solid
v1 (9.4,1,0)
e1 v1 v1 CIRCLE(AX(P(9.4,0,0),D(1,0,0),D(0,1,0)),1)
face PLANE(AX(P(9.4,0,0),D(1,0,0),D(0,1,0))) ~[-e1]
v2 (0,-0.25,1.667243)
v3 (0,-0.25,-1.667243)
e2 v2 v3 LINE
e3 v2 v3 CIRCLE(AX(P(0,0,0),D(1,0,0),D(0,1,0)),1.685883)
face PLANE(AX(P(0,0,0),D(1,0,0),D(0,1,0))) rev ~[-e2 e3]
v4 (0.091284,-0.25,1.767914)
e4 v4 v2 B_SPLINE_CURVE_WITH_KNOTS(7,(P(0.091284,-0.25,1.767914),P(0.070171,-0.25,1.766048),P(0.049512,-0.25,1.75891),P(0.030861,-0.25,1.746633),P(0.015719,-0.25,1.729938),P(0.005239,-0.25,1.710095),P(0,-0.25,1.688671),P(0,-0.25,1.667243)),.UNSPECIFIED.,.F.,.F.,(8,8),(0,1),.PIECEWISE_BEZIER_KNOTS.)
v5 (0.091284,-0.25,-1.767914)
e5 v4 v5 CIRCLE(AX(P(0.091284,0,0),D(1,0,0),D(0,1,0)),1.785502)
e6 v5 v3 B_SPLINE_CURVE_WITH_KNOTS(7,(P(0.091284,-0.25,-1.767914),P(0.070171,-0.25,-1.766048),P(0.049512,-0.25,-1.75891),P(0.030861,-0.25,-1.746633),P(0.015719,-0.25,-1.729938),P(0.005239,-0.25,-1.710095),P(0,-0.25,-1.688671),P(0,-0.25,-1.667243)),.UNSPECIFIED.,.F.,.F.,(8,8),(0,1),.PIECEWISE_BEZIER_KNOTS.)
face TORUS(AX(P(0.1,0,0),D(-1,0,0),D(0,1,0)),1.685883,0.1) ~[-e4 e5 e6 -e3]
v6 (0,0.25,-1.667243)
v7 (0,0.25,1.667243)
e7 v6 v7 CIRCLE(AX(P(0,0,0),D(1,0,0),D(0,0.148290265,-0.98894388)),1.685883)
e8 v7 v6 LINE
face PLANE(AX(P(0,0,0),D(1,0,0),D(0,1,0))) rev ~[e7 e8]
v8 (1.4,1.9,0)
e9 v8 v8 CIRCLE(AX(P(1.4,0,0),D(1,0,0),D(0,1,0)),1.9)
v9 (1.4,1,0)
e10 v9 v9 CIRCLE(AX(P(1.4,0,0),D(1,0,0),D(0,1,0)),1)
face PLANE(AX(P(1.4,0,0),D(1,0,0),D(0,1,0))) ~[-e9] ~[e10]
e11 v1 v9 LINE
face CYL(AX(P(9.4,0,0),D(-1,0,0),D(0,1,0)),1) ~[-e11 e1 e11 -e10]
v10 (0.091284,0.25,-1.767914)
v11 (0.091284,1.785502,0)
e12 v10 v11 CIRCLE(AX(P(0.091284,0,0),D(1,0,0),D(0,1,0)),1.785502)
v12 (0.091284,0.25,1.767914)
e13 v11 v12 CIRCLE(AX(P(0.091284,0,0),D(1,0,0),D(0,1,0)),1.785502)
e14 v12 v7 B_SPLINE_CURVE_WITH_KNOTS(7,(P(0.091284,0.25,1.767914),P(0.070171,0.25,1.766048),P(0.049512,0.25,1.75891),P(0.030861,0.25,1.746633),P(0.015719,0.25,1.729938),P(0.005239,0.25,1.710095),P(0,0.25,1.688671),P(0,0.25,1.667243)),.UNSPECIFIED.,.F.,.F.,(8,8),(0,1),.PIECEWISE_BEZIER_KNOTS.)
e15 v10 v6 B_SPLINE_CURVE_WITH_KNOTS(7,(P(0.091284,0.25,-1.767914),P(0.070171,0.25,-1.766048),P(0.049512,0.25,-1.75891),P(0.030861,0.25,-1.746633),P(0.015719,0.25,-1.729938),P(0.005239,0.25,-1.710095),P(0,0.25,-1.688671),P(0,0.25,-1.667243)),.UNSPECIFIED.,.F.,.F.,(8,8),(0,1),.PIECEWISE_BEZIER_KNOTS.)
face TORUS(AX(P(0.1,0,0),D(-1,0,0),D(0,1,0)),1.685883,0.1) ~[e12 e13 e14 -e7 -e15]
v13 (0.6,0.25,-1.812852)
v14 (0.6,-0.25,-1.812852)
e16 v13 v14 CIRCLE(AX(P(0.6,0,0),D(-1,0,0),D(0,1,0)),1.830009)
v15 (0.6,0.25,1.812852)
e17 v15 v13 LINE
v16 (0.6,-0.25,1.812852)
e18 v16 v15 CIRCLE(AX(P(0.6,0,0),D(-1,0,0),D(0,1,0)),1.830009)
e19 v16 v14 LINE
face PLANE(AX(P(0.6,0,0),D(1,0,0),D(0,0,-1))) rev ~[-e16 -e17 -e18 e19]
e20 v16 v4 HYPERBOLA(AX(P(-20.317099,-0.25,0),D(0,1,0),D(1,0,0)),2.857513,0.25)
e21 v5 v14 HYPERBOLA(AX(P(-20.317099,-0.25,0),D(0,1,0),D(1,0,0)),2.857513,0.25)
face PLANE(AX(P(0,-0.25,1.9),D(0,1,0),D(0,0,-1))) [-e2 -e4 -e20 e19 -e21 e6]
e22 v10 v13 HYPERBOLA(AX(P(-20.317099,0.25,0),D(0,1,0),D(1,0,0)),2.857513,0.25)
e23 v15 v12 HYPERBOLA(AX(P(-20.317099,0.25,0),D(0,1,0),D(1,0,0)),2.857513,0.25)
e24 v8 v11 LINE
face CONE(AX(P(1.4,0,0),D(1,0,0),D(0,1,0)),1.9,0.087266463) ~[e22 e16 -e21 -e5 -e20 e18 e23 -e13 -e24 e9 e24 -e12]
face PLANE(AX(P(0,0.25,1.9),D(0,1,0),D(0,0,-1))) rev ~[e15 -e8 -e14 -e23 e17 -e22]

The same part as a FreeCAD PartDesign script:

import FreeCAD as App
import Part
import Sketcher
from FreeCAD import Vector
Q = App.Units.Quantity


def edges_at(feature, points):
    """Names of the edges that pass closest to the given points."""
    edges = feature.Shape.Edges
    near = lambda p: min(range(len(edges)), key=lambda i: edges[i].distToShape(Part.Vertex(*p))[0])
    return sorted({f"Edge{near(p) + 1}" for p in points})

doc = App.newDocument("Part")
params = doc.addObject("Spreadsheet::Sheet", "Params")
for row, (alias, value) in enumerate([
    ("sketch1_width", "8 mm"),
    ("sketch1_height", "1 mm"),
    ("sketch1_width2", "9.4 mm"),
    ("sketch1_height2", "0.9 mm"),
    ("revolution_angle", "360 deg"),
    ("fillet_radius", "0.1 mm"),
    ("sketch2_width", "0.5 mm"),
    ("sketch2_height", "3.8 mm"),
    ("pocket1_length", "0.6 mm"),
], start=1):
    params.set(f"A{row}", alias)
    params.set(f"B{row}", "=" + value)
    params.setAlias(f"B{row}", alias)

body = doc.addObject("PartDesign::Body", "Body")

# Sketch on XY plane
sketch1 = body.newObject("Sketcher::SketchObject", "Sketch")
sketch1.AttachmentSupport = (doc.getObject("XY_Plane"), [""])
sketch1.MapMode = "FlatFace"
sketch1.addGeometry([
    Part.LineSegment(Vector(1.4, 1, 0), Vector(1.4, 1.9, 0)),  # 0
    Part.LineSegment(Vector(1.4, 1.9, 0), Vector(0, 1.8, 0)),  # 1
    Part.LineSegment(Vector(0, 1.8, 0), Vector(0, 0, 0)),  # 2
    Part.LineSegment(Vector(0, 0, 0), Vector(9.4, 0, 0)),  # 3
    Part.LineSegment(Vector(9.4, 0, 0), Vector(9.4, 1, 0)),  # 4
    Part.LineSegment(Vector(9.4, 1, 0), Vector(1.4, 1, 0)),  # 5
], False)
sketch1.addConstraint([
    Sketcher.Constraint("Coincident", 0, 2, 1, 1),
    Sketcher.Constraint("Coincident", 1, 2, 2, 1),
    Sketcher.Constraint("Coincident", 2, 2, 3, 1),
    Sketcher.Constraint("Coincident", 3, 2, 4, 1),
    Sketcher.Constraint("Coincident", 4, 2, 5, 1),
    Sketcher.Constraint("Coincident", 5, 2, 0, 1),
    Sketcher.Constraint("Vertical", 0),
    Sketcher.Constraint("Vertical", 2),
    Sketcher.Constraint("Horizontal", 3),
    Sketcher.Constraint("Vertical", 4),
    Sketcher.Constraint("Horizontal", 5),
    Sketcher.Constraint("Coincident", 2, 2, -1, 1),
    Sketcher.Constraint("DistanceX", 5, 2, 5, 1, 8.0),
    Sketcher.Constraint("DistanceY", 4, 1, 4, 2, 1.0),
    Sketcher.Constraint("Angle", 1, Q("-175 deg")),
    Sketcher.Constraint("DistanceX", 3, 1, 3, 2, 9.4),
    Sketcher.Constraint("DistanceY", 0, 1, 0, 2, 0.9),
])
sketch1.setExpression("Constraints[12]", "Params.sketch1_width")
sketch1.setExpression("Constraints[13]", "Params.sketch1_height")
sketch1.setExpression("Constraints[15]", "Params.sketch1_width2")
sketch1.setExpression("Constraints[16]", "Params.sketch1_height2")
revolution = body.newObject("PartDesign::Revolution", "Revolution")
revolution.Profile = sketch1
revolution.ReferenceAxis = (sketch1, ["H_Axis"])
revolution.setExpression("Angle", "Params.revolution_angle")
doc.recompute()

fillet = body.newObject("PartDesign::Fillet", "Fillet")
fillet.Base = (revolution, edges_at(revolution, [(0, -1.778, 0)]))
fillet.setExpression("Radius", "Params.fillet_radius")

# Sketch on YZ plane
sketch2 = body.newObject("Sketcher::SketchObject", "Sketch001")
sketch2.AttachmentSupport = (doc.getObject("YZ_Plane"), [""])
sketch2.MapMode = "FlatFace"
sketch2.addGeometry([
    Part.LineSegment(Vector(0.2, 1.9, 0), Vector(-0.2, 1.9, 0)),
    Part.LineSegment(Vector(-0.2, 1.9, 0), Vector(-0.2, -1.9, 0)),
    Part.LineSegment(Vector(-0.2, -1.9, 0), Vector(0.2, -1.9, 0)),
    Part.LineSegment(Vector(0.2, -1.9, 0), Vector(0.2, 1.9, 0)),
], False)
sketch2.addConstraint([
    Sketcher.Constraint("Coincident", 0, 2, 1, 1),
    Sketcher.Constraint("Coincident", 1, 2, 2, 1),
    Sketcher.Constraint("Coincident", 2, 2, 3, 1),
    Sketcher.Constraint("Coincident", 3, 2, 0, 1),
    Sketcher.Constraint("Horizontal", 0),
    Sketcher.Constraint("Vertical", 1),
    Sketcher.Constraint("Horizontal", 2),
    Sketcher.Constraint("Vertical", 3),
    Sketcher.Constraint("Symmetric", 0, 2, 2, 2, -1, 1),
    Sketcher.Constraint("DistanceX", 0, 2, 0, 1, 0.5),
    Sketcher.Constraint("DistanceY", 1, 2, 1, 1, 3.8),
])
sketch2.setExpression("Constraints[9]", "Params.sketch2_width")
sketch2.setExpression("Constraints[10]", "Params.sketch2_height")
pocket1 = body.newObject("PartDesign::Pocket", "Pocket")
pocket1.Profile = sketch2
pocket1.setExpression("Length", "Params.pocket1_length")
pocket1.Reversed = True

doc.recompute()
